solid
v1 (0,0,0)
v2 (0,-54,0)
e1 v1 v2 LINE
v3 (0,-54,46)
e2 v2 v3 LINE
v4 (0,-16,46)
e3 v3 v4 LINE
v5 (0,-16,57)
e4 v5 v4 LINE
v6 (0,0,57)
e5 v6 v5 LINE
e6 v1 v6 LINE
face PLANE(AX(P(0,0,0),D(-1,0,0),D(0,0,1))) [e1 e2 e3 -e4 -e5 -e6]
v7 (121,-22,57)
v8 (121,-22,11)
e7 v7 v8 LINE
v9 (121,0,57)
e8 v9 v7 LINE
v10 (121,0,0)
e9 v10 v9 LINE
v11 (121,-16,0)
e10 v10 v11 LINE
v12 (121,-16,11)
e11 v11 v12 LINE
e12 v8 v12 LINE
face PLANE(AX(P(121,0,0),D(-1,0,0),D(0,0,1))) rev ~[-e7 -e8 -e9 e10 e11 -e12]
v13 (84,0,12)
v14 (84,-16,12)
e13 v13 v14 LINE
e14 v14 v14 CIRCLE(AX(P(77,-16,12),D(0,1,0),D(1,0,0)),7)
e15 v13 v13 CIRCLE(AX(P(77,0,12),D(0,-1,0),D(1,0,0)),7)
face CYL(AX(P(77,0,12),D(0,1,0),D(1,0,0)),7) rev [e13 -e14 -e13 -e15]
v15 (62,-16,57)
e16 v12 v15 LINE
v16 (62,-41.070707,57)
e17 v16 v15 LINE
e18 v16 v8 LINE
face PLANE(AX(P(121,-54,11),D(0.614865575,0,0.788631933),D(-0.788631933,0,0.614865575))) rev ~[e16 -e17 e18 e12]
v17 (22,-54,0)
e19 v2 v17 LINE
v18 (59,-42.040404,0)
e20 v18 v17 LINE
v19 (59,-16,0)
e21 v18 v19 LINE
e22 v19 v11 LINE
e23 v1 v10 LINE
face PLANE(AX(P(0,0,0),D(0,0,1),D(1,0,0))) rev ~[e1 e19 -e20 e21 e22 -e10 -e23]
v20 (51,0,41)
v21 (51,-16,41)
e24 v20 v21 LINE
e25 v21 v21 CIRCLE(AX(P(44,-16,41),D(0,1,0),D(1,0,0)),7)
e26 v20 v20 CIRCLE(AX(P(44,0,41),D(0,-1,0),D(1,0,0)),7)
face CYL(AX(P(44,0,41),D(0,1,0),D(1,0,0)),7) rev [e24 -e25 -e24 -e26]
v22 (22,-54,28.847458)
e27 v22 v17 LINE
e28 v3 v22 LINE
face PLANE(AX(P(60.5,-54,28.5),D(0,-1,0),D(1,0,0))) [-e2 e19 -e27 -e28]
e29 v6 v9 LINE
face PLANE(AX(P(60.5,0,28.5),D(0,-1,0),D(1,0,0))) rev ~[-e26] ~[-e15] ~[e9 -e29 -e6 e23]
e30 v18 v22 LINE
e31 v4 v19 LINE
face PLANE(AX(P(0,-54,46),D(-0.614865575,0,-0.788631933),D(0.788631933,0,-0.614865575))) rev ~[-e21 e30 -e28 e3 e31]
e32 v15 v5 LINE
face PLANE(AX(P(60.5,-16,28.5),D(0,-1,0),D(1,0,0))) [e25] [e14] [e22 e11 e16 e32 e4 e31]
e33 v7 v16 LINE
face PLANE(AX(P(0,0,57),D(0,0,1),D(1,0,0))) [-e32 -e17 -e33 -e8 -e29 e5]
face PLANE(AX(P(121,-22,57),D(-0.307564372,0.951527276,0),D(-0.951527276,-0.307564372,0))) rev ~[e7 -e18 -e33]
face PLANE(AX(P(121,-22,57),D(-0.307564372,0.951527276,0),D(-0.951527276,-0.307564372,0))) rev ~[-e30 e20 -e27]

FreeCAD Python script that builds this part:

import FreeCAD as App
import Part
import Sketcher

doc = App.newDocument("Part")
body = doc.addObject("PartDesign::Body", "Body")

# Sketch on XZ plane
sketch1 = body.newObject("Sketcher::SketchObject", "Sketch")
sketch1.AttachmentSupport = (doc.getObject("XZ_Plane"), [""])
sketch1.MapMode = "FlatFace"
sketch1.addGeometry([
    Part.LineSegment(App.Vector(0, 57, 0), App.Vector(0, 0, 0)),
    Part.LineSegment(App.Vector(0, 0, 0), App.Vector(121, 0, 0)),
    Part.LineSegment(App.Vector(121, 0, 0), App.Vector(121, 57, 0)),
    Part.LineSegment(App.Vector(121, 57, 0), App.Vector(0, 57, 0)),
], False)
sketch1.addConstraint([
    Sketcher.Constraint("Coincident", 0, 2, 1, 1),
    Sketcher.Constraint("Coincident", 1, 2, 2, 1),
    Sketcher.Constraint("Coincident", 2, 2, 3, 1),
    Sketcher.Constraint("Coincident", 3, 2, 0, 1),
    Sketcher.Constraint("Vertical", 0),
    Sketcher.Constraint("Horizontal", 1),
    Sketcher.Constraint("Vertical", 2),
    Sketcher.Constraint("Horizontal", 3),
    Sketcher.Constraint("Coincident", 0, 2, -1, 1),
    Sketcher.Constraint("DistanceX", 1, 1, 1, 2, 121.0),
    Sketcher.Constraint("DistanceY", 0, 2, 0, 1, 57.0),
])
pad1 = body.newObject("PartDesign::Pad", "Pad")
pad1.Profile = sketch1
pad1.Length = 54

# Sketch on XY plane
sketch2 = body.newObject("Sketcher::SketchObject", "Sketch001")
sketch2.AttachmentSupport = (doc.getObject("XY_Plane"), [""])
sketch2.MapMode = "FlatFace"
sketch2.AttachmentOffset = App.Placement(App.Vector(0, 0, 57), App.Rotation())
sketch2.addGeometry([
    Part.LineSegment(App.Vector(121, -22, 0), App.Vector(22, -54, 0)),
    Part.LineSegment(App.Vector(22, -54, 0), App.Vector(121, -54, 0)),
    Part.LineSegment(App.Vector(121, -54, 0), App.Vector(121, -22, 0)),
], False)
sketch2.addConstraint([
    Sketcher.Constraint("Coincident", 0, 2, 1, 1),
    Sketcher.Constraint("Coincident", 1, 2, 2, 1),
    Sketcher.Constraint("Coincident", 2, 2, 0, 1),
    Sketcher.Constraint("Horizontal", 1),
    Sketcher.Constraint("Vertical", 2),
    Sketcher.Constraint("DistanceX", 1, 1, 1, 2, 99.0),
    Sketcher.Constraint("DistanceY", 2, 1, 2, 2, 32.0),
    Sketcher.Constraint("DistanceX", -1, 1, 0, 2, 22.0),
    Sketcher.Constraint("DistanceY", 0, 2, -1, 1, 54.0),
])
pocket1 = body.newObject("PartDesign::Pocket", "Pocket")
pocket1.Profile = sketch2
pocket1.Type = "ThroughAll"

# Sketch on XZ plane
sketch3 = body.newObject("Sketcher::SketchObject", "Sketch002")
sketch3.AttachmentSupport = (doc.getObject("XZ_Plane"), [""])
sketch3.MapMode = "FlatFace"
sketch3.addGeometry([
    Part.Circle(App.Vector(44, 41, 0), App.Vector(0, 0, 1), 7),
    Part.Circle(App.Vector(77, 12, 0), App.Vector(0, 0, 1), 7),
], False)
sketch3.addConstraint([
    Sketcher.Constraint("Equal", 0, 1),
    Sketcher.Constraint("Diameter", 0, 14.0),
    Sketcher.Constraint("DistanceX", -1, 1, 0, 3, 44.0),
    Sketcher.Constraint("DistanceY", -1, 1, 0, 3, 41.0),
    Sketcher.Constraint("DistanceX", -1, 1, 1, 3, 77.0),
    Sketcher.Constraint("DistanceY", -1, 1, 1, 3, 12.0),
])
pocket2 = body.newObject("PartDesign::Pocket", "Pocket001")
pocket2.Profile = sketch3
pocket2.Type = "ThroughAll"
pocket2.Reversed = True

# Sketch on XZ plane
sketch4 = body.newObject("Sketcher::SketchObject", "Sketch003")
sketch4.AttachmentSupport = (doc.getObject("XZ_Plane"), [""])
sketch4.MapMode = "FlatFace"
sketch4.AttachmentOffset = App.Placement(App.Vector(0, 0, 54), App.Rotation())
sketch4.addGeometry([
    Part.LineSegment(App.Vector(59, 0, 0), App.Vector(121, 0, 0)),  # 0
    Part.LineSegment(App.Vector(121, 0, 0), App.Vector(121, 11, 0)),  # 1
    Part.LineSegment(App.Vector(121, 11, 0), App.Vector(62, 57, 0)),  # 2
    Part.LineSegment(App.Vector(62, 57, 0), App.Vector(0, 57, 0)),  # 3
    Part.LineSegment(App.Vector(0, 57, 0), App.Vector(0, 46, 0)),  # 4
    Part.LineSegment(App.Vector(0, 46, 0), App.Vector(59, 0, 0)),  # 5
], False)
sketch4.addConstraint([
    Sketcher.Constraint("Coincident", 0, 2, 1, 1),
    Sketcher.Constraint("Coincident", 1, 2, 2, 1),
    Sketcher.Constraint("Coincident", 2, 2, 3, 1),
    Sketcher.Constraint("Coincident", 3, 2, 4, 1),
    Sketcher.Constraint("Coincident", 4, 2, 5, 1),
    Sketcher.Constraint("Coincident", 5, 2, 0, 1),
    Sketcher.Constraint("Horizontal", 0),
    Sketcher.Constraint("Vertical", 1),
    Sketcher.Constraint("Horizontal", 3),
    Sketcher.Constraint("Vertical", 4),
    Sketcher.Constraint("PointOnObject", 0, 2, -1),
    Sketcher.Constraint("PointOnObject", 3, 2, -2),
    Sketcher.Constraint("Parallel", 2, 5),
    Sketcher.Constraint("Equal", 0, 3),
    Sketcher.Constraint("DistanceX", 0, 1, 0, 2, 62.0),
    Sketcher.Constraint("DistanceY", 1, 1, 1, 2, 11.0),
    Sketcher.Constraint("DistanceX", -1, 1, 0, 2, 121.0),
    Sketcher.Constraint("DistanceY", -1, 1, 2, 2, 57.0),
])
pocket3 = body.newObject("PartDesign::Pocket", "Pocket002")
pocket3.Profile = sketch4
pocket3.Length = 38

doc.recompute()
